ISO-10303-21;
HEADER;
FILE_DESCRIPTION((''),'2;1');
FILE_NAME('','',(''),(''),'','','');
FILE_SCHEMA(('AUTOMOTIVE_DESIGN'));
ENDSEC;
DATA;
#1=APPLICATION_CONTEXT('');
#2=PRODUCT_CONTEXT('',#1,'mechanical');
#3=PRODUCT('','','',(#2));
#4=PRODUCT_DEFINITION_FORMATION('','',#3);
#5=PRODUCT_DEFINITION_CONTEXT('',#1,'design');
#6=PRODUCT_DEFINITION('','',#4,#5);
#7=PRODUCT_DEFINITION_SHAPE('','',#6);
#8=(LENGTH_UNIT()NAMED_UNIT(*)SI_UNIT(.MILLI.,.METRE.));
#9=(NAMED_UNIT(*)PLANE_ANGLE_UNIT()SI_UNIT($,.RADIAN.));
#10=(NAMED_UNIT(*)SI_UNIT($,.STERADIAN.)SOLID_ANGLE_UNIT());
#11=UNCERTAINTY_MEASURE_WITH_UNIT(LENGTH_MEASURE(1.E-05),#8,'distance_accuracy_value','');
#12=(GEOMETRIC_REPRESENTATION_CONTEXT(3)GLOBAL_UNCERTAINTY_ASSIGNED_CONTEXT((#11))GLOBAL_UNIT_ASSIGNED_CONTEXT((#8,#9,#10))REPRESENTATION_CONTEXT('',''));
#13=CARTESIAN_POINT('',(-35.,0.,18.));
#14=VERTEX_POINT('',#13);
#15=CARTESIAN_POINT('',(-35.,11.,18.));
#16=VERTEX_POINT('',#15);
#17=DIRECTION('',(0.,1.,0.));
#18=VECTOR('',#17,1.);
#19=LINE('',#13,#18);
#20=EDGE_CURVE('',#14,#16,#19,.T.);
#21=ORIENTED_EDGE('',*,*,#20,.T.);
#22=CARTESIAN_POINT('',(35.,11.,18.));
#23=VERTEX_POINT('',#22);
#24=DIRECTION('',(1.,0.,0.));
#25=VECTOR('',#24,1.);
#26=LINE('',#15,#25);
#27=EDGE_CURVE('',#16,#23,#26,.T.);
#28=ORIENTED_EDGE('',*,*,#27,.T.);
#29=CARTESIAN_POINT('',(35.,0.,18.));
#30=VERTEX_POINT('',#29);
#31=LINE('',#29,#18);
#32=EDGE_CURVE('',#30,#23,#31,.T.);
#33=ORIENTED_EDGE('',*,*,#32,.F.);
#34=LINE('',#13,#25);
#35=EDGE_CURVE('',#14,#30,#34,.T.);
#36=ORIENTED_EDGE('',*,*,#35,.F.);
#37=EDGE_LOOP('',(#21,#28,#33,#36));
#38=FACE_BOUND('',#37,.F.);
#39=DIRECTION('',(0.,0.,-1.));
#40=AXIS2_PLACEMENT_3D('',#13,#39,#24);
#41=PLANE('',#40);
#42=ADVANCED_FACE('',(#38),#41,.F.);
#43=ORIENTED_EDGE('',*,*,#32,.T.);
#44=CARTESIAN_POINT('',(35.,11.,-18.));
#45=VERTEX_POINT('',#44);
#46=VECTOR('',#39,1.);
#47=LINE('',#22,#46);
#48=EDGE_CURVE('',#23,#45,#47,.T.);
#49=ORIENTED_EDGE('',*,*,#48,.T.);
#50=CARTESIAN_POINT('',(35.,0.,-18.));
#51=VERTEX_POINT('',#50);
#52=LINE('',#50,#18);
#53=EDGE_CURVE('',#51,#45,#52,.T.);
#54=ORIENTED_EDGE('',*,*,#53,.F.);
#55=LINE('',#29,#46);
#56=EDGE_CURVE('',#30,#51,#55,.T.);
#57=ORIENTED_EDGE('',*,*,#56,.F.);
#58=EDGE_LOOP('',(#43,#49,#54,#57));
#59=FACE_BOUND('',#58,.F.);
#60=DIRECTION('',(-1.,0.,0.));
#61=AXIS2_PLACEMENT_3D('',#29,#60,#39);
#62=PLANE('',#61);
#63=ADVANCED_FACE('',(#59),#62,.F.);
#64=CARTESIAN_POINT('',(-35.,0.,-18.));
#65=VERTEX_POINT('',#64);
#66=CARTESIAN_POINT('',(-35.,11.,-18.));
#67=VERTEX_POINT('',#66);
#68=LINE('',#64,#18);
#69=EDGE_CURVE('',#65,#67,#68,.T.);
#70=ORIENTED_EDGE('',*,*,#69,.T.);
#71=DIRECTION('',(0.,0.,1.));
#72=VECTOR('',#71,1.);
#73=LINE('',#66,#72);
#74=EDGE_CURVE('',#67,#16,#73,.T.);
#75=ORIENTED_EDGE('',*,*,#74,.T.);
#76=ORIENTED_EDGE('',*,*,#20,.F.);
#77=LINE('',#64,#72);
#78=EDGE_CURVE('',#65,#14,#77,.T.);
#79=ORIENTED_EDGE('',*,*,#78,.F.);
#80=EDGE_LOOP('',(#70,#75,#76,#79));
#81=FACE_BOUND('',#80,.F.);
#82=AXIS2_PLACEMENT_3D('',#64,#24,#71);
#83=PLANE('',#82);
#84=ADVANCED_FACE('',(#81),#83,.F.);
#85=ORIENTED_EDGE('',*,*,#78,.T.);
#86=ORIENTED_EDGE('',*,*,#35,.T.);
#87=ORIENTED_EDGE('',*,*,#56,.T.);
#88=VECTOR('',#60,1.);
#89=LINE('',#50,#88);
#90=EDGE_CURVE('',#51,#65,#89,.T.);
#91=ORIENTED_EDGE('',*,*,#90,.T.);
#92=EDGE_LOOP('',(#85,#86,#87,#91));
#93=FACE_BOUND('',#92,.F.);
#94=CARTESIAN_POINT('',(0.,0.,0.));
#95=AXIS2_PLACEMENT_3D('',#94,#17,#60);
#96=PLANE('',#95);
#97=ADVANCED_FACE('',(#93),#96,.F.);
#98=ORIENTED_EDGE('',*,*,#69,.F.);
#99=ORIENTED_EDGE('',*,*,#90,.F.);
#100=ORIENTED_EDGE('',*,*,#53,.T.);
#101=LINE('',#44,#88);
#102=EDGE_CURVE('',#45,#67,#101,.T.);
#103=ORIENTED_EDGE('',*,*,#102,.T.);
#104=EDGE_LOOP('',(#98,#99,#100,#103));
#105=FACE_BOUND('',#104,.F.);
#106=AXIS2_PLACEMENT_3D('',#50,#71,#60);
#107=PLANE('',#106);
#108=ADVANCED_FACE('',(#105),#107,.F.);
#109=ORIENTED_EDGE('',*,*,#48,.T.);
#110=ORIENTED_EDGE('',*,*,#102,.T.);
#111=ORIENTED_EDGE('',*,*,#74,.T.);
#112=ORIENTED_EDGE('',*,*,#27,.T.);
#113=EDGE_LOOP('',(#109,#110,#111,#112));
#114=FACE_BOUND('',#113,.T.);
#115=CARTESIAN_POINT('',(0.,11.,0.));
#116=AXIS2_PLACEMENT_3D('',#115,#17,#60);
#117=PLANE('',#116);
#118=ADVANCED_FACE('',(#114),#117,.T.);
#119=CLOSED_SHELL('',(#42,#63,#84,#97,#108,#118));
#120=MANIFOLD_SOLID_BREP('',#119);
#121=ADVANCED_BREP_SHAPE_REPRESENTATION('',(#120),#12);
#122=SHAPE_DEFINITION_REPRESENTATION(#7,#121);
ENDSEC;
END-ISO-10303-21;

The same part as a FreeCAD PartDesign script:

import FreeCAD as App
import Part
import Sketcher

V = App.Vector


def add_polygon(sketch, points):
    """Adds a closed chain of lines whose ends are joined by coincident constraints."""
    first, n = sketch.GeometryCount, len(points)
    for a, b in zip(points, points[1:] + points[:1]):
        sketch.addGeometry(Part.LineSegment(App.Vector(*a, 0), App.Vector(*b, 0)), False)
    for i in range(n):
        sketch.addConstraint(Sketcher.Constraint("Coincident", first + i, 2, first + (i + 1) % n, 1))

doc = App.newDocument("Part")
body = doc.addObject("PartDesign::Body", "Body")

# Sketch on XZ plane
sketch1 = body.newObject("Sketcher::SketchObject", "Sketch")
sketch1.AttachmentSupport = (doc.getObject("XZ_Plane"), [""])
sketch1.MapMode = "FlatFace"
add_polygon(sketch1, [(-35, -18), (-35, 18), (35, 18), (35, -18)])  # lines 0-3
sketch1.addConstraint([
    Sketcher.Constraint("Vertical", 0),
    Sketcher.Constraint("Horizontal", 1),
    Sketcher.Constraint("Vertical", 2),
    Sketcher.Constraint("Horizontal", 3),
    Sketcher.Constraint("Symmetric", 0, 2, 2, 2, -1, 1),
    Sketcher.Constraint("DistanceX", 1, 1, 1, 2, 70.0),
    Sketcher.Constraint("DistanceY", 0, 1, 0, 2, 36.0),
])
pad1 = body.newObject("PartDesign::Pad", "Pad")
pad1.Profile = sketch1
pad1.Length = 11
pad1.Reversed = True

doc.recompute()
